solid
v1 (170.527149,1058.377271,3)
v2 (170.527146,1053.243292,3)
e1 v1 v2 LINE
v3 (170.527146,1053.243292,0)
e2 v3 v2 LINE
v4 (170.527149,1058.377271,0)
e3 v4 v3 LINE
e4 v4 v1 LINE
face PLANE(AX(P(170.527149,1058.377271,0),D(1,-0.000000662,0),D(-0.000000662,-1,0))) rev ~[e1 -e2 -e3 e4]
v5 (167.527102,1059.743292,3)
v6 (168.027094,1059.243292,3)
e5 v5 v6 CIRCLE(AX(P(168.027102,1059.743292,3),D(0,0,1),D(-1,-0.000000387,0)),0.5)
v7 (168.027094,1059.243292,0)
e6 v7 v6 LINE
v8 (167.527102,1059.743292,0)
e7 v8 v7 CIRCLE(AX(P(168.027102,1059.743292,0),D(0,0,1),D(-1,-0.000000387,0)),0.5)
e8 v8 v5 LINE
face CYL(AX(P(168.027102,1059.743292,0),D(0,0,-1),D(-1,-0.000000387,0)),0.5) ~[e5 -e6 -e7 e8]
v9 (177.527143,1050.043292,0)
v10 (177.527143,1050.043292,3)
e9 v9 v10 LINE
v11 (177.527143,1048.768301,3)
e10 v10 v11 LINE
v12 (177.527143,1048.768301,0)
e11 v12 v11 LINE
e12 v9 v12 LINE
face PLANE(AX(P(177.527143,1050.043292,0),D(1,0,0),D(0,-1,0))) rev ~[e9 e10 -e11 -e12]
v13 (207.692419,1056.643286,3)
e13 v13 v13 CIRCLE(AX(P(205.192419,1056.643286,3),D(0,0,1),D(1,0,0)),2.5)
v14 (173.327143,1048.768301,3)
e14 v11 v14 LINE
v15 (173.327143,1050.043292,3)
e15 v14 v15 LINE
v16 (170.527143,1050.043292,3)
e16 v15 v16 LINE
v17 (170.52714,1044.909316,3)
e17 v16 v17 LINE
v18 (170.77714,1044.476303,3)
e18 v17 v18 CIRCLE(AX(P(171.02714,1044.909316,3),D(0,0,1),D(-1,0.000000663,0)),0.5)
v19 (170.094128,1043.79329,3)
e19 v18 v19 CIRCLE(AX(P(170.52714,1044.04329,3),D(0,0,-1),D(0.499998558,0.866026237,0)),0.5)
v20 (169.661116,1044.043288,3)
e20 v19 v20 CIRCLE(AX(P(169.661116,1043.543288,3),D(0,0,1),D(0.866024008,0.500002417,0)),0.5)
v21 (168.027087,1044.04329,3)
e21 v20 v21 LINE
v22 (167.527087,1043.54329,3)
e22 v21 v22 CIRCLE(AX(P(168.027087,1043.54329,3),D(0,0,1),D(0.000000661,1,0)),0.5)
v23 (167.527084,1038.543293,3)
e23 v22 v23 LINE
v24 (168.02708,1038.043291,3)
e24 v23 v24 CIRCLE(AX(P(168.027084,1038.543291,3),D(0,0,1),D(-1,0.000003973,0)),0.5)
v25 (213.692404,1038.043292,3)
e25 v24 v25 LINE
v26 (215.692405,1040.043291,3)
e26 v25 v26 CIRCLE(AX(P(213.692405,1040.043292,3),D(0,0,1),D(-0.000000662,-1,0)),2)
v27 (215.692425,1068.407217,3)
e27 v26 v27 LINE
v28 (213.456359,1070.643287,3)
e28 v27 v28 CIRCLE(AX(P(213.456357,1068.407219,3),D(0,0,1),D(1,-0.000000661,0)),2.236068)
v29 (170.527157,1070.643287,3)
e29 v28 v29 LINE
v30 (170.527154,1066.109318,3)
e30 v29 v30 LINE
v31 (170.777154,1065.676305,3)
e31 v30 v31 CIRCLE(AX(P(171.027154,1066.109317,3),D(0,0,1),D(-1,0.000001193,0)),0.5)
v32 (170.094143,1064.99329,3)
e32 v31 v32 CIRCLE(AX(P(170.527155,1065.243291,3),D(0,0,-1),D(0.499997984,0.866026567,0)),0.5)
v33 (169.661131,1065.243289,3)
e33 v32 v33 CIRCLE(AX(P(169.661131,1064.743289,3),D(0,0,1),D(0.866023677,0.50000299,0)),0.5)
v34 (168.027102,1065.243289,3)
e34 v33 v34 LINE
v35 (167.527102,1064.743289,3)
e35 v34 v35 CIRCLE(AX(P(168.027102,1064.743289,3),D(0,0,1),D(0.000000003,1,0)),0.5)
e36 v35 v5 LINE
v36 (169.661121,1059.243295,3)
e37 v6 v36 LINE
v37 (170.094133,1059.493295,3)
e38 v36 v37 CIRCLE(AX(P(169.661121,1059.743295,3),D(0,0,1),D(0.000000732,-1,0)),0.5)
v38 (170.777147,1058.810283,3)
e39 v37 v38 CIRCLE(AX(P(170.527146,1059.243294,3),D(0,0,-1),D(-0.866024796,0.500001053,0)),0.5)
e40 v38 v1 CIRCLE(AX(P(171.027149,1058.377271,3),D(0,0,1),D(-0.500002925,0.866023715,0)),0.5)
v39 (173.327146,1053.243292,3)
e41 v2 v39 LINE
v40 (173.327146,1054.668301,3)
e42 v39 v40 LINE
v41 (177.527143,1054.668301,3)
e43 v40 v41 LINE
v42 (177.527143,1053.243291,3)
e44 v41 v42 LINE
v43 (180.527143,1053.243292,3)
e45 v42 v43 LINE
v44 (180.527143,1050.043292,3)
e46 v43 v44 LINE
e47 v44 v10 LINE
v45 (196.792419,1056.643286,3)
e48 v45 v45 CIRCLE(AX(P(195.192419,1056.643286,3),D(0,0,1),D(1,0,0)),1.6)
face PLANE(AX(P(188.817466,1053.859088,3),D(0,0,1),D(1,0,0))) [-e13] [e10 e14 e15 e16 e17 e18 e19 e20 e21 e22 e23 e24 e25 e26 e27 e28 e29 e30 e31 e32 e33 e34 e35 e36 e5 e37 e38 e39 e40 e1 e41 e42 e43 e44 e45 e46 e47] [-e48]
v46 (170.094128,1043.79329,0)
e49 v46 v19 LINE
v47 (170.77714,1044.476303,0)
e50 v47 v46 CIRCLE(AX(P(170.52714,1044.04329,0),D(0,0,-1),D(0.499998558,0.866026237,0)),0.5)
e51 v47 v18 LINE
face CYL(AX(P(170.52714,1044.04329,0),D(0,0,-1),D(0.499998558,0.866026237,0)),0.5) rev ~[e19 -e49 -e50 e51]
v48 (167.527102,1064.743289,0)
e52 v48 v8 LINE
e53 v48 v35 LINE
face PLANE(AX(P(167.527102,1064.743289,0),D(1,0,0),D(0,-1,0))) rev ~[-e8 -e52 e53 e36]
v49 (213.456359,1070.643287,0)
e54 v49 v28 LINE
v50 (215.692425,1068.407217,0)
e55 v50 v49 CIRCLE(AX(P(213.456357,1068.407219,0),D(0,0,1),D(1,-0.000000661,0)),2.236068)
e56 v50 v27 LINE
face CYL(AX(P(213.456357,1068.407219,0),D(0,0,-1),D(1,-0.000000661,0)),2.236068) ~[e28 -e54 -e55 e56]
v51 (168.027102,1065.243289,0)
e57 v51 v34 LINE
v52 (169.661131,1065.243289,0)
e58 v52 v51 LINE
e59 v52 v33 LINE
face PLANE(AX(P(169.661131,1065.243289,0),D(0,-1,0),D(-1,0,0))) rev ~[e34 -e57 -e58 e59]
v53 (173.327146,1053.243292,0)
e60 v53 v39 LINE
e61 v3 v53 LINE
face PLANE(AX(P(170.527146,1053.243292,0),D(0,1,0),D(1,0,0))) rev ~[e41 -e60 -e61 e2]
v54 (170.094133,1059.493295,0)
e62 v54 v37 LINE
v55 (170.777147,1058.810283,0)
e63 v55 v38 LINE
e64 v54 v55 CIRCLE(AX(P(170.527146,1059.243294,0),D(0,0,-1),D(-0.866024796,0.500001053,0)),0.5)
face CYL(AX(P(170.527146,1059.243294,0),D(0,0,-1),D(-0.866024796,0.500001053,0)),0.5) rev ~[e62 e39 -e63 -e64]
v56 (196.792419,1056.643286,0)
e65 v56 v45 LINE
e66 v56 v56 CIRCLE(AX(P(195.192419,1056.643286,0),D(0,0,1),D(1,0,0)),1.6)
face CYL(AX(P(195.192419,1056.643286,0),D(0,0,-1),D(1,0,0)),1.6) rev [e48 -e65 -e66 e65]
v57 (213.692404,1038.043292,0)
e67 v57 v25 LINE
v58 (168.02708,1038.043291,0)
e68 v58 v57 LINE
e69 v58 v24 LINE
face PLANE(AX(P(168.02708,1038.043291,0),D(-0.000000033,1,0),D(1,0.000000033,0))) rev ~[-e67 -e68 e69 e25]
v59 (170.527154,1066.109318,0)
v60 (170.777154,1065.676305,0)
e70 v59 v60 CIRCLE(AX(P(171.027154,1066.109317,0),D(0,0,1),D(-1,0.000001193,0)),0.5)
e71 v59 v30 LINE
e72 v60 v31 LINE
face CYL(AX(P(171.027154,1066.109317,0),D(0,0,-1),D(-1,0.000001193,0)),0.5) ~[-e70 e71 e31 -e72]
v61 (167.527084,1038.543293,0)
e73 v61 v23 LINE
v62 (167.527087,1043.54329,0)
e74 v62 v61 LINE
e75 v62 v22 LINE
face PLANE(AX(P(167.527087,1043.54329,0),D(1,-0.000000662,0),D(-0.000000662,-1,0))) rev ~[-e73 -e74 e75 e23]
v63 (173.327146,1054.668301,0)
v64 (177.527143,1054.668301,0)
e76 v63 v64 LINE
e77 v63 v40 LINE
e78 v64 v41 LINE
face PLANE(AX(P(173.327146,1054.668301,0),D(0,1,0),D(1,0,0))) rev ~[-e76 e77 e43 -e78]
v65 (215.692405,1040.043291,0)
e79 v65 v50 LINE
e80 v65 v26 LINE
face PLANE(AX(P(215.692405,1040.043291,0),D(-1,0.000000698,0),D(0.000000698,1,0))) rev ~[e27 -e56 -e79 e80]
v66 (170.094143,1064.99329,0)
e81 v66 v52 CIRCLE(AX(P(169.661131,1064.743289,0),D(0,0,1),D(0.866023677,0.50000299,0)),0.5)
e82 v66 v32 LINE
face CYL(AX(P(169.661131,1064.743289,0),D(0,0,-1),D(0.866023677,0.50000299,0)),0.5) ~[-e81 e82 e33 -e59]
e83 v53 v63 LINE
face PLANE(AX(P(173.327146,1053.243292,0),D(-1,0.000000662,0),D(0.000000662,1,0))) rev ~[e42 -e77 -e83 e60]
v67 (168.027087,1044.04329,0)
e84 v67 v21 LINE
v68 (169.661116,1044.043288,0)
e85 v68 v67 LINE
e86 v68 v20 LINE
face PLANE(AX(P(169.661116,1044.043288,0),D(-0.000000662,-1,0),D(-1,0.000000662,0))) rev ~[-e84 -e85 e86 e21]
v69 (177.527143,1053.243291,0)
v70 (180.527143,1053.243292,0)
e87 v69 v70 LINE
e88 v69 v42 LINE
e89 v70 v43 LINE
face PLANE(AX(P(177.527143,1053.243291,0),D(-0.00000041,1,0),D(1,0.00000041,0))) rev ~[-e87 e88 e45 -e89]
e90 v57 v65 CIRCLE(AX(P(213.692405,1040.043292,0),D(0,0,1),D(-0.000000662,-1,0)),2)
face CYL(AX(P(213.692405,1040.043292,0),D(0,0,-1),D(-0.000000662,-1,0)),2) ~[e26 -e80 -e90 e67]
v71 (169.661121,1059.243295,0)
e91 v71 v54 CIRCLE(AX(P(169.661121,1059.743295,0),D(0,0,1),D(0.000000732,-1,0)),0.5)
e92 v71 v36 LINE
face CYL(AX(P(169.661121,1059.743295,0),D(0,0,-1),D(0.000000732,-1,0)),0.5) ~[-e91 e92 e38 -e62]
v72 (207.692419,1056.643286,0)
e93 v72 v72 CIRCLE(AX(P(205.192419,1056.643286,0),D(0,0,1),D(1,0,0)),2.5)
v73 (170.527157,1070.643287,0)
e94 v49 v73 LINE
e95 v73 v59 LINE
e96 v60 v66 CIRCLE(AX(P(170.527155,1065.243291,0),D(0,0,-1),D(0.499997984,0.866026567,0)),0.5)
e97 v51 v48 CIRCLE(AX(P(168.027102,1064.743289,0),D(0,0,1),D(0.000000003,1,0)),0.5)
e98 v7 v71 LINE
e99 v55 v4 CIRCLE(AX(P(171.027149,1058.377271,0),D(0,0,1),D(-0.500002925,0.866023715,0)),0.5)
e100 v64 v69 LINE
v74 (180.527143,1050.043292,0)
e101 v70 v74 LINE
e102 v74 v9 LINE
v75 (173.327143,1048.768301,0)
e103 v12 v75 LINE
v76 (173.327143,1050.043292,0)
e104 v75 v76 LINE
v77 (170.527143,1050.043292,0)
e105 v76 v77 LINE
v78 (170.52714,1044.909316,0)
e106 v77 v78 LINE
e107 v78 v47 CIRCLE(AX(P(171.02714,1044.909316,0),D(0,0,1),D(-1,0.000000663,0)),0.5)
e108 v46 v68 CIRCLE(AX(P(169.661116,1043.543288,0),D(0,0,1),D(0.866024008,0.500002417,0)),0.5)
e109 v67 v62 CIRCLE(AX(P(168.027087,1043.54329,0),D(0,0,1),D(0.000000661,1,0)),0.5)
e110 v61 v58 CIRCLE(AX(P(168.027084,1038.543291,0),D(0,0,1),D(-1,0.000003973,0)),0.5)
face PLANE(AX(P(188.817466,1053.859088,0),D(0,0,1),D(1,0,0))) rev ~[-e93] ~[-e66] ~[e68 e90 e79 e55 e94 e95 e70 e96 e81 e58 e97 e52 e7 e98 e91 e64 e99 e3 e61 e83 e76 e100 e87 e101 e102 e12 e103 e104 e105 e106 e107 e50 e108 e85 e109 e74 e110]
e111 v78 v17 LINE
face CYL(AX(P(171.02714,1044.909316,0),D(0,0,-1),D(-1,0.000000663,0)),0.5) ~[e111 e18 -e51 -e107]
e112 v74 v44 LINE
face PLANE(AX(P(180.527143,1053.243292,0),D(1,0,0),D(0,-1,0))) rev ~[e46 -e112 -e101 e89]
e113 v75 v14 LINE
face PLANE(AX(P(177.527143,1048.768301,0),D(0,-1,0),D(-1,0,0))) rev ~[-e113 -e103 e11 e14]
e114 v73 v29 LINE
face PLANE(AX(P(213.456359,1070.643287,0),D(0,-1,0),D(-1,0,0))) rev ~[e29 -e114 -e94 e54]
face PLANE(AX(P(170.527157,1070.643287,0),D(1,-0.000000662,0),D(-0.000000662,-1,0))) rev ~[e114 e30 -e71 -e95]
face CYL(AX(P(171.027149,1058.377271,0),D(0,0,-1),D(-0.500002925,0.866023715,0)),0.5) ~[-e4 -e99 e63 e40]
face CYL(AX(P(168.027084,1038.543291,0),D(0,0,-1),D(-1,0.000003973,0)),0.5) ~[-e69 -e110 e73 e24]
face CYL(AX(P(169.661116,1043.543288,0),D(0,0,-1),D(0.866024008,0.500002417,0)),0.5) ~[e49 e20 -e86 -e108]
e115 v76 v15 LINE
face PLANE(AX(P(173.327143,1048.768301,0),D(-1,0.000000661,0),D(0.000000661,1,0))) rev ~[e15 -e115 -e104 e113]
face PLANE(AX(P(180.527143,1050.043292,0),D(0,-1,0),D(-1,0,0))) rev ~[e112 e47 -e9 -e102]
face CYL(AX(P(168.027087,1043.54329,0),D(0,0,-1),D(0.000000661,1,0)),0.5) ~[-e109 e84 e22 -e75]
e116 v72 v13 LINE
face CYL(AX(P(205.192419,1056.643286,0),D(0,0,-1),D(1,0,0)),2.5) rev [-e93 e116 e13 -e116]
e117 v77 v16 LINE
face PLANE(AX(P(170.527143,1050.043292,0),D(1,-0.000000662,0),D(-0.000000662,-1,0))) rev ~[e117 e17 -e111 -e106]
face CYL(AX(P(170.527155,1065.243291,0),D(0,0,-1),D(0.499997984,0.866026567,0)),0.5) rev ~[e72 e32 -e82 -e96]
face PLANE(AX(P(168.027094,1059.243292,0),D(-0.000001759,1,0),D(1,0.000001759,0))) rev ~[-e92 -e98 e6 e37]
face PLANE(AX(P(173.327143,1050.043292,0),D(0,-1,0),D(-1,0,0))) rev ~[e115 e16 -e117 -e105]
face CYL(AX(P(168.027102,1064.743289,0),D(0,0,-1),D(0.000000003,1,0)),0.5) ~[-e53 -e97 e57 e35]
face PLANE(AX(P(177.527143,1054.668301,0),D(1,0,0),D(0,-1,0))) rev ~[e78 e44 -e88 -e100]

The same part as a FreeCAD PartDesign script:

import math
import FreeCAD as App
import Part
import Sketcher

doc = App.newDocument("Part")
body = doc.addObject("PartDesign::Body", "Body")

sketch1 = doc.addObject("Sketcher::SketchObject", "Sketch")
body.addObject(sketch1)
sketch1.AttachmentSupport = (doc.XY_Plane, [""])
sketch1.MapMode = "FlatFace"
sketch1.addGeometry([
    Part.LineSegment(App.Vector(168.02708, 1038.043291, 0), App.Vector(213.692404, 1038.043292, 0)),
    Part.ArcOfCircle(Part.Circle(App.Vector(213.692405, 1040.043292, 0), App.Vector(0, 0, 1), 2), math.radians(-90.000038), math.radians(-0.000038)),
    Part.LineSegment(App.Vector(215.692405, 1040.043291, 0), App.Vector(215.692425, 1068.407217, 0)),
    Part.ArcOfCircle(Part.Circle(App.Vector(213.456357, 1068.407219, 0), App.Vector(0, 0, 1), 2.236068), math.radians(-0.000038), math.radians(89.999961)),
    Part.LineSegment(App.Vector(213.456359, 1070.643287, 0), App.Vector(170.527157, 1070.643287, 0)),
    Part.LineSegment(App.Vector(170.527157, 1070.643287, 0), App.Vector(170.527154, 1066.109318, 0)),
    Part.ArcOfCircle(Part.Circle(App.Vector(171.027154, 1066.109317, 0), App.Vector(0, 0, 1), 0.5), math.radians(179.999932), math.radians(240)),
    Part.ArcOfCircle(Part.Circle(App.Vector(170.527155, 1065.243291, 0), App.Vector(0, 0, 1), 0.5), math.radians(-149.999878), math.radians(60.000133)),
    Part.ArcOfCircle(Part.Circle(App.Vector(169.661131, 1064.743289, 0), App.Vector(0, 0, 1), 0.5), math.radians(30.000198), math.radians(90)),
    Part.LineSegment(App.Vector(169.661131, 1065.243289, 0), App.Vector(168.027102, 1065.243289, 0)),
    Part.ArcOfCircle(Part.Circle(App.Vector(168.027102, 1064.743289, 0), App.Vector(0, 0, 1), 0.5), math.radians(90), math.radians(180)),
    Part.LineSegment(App.Vector(167.527102, 1064.743289, 0), App.Vector(167.527102, 1059.743292, 0)),
    Part.ArcOfCircle(Part.Circle(App.Vector(168.027102, 1059.743292, 0), App.Vector(0, 0, 1), 0.5), math.radians(-179.999978), math.radians(-90.000922)),
    Part.LineSegment(App.Vector(168.027094, 1059.243292, 0), App.Vector(169.661121, 1059.243295, 0)),
    Part.ArcOfCircle(Part.Circle(App.Vector(169.661121, 1059.743295, 0), App.Vector(0, 0, 1), 0.5), math.radians(-89.999958), math.radians(-30.000004)),
    Part.ArcOfCircle(Part.Circle(App.Vector(170.527146, 1059.243294, 0), App.Vector(0, 0, 1), 0.5), math.radians(-59.999768), math.radians(149.99993)),
    Part.ArcOfCircle(Part.Circle(App.Vector(171.027149, 1058.377271, 0), App.Vector(0, 0, 1), 0.5), math.radians(120.000193), math.radians(179.999962)),
    Part.LineSegment(App.Vector(170.527149, 1058.377271, 0), App.Vector(170.527146, 1053.243292, 0)),
    Part.LineSegment(App.Vector(170.527146, 1053.243292, 0), App.Vector(173.327146, 1053.243292, 0)),
    Part.LineSegment(App.Vector(173.327146, 1053.243292, 0), App.Vector(173.327146, 1054.668301, 0)),
    Part.LineSegment(App.Vector(173.327146, 1054.668301, 0), App.Vector(177.527143, 1054.668301, 0)),
    Part.LineSegment(App.Vector(177.527143, 1054.668301, 0), App.Vector(177.527143, 1053.243291, 0)),
    Part.LineSegment(App.Vector(177.527143, 1053.243291, 0), App.Vector(180.527143, 1053.243292, 0)),
    Part.LineSegment(App.Vector(180.527143, 1053.243292, 0), App.Vector(180.527143, 1050.043292, 0)),
    Part.LineSegment(App.Vector(180.527143, 1050.043292, 0), App.Vector(177.527143, 1050.043292, 0)),
    Part.LineSegment(App.Vector(177.527143, 1050.043292, 0), App.Vector(177.527143, 1048.768301, 0)),
    Part.LineSegment(App.Vector(177.527143, 1048.768301, 0), App.Vector(173.327143, 1048.768301, 0)),
    Part.LineSegment(App.Vector(173.327143, 1048.768301, 0), App.Vector(173.327143, 1050.043292, 0)),
    Part.LineSegment(App.Vector(173.327143, 1050.043292, 0), App.Vector(170.527143, 1050.043292, 0)),
    Part.LineSegment(App.Vector(170.527143, 1050.043292, 0), App.Vector(170.52714, 1044.909316, 0)),
    Part.ArcOfCircle(Part.Circle(App.Vector(171.02714, 1044.909316, 0), App.Vector(0, 0, 1), 0.5), math.radians(179.999962), math.radians(239.999962)),
    Part.ArcOfCircle(Part.Circle(App.Vector(170.52714, 1044.04329, 0), App.Vector(0, 0, 1), 0.5), math.radians(-149.999916), math.radians(60.000095)),
    Part.ArcOfCircle(Part.Circle(App.Vector(169.661116, 1043.543288, 0), App.Vector(0, 0, 1), 0.5), math.radians(30.00016), math.radians(89.999962)),
    Part.LineSegment(App.Vector(169.661116, 1044.043288, 0), App.Vector(168.027087, 1044.04329, 0)),
    Part.ArcOfCircle(Part.Circle(App.Vector(168.027087, 1043.54329, 0), App.Vector(0, 0, 1), 0.5), math.radians(89.999962), math.radians(179.999962)),
    Part.LineSegment(App.Vector(167.527087, 1043.54329, 0), App.Vector(167.527084, 1038.543293, 0)),
    Part.ArcOfCircle(Part.Circle(App.Vector(168.027084, 1038.543291, 0), App.Vector(0, 0, 1), 0.5), math.radians(179.999772), math.radians(269.999553)),
    Part.Circle(App.Vector(195.192419, 1056.643286, 0), App.Vector(0, 0, 1), 1.6),
    Part.Circle(App.Vector(205.192419, 1056.643286, 0), App.Vector(0, 0, 1), 2.5),
], False)
sketch1.addConstraint([
    Sketcher.Constraint("Coincident", 0, 2, 1, 1),
    Sketcher.Constraint("Coincident", 1, 2, 2, 1),
    Sketcher.Constraint("Coincident", 2, 2, 3, 1),
    Sketcher.Constraint("Coincident", 3, 2, 4, 1),
    Sketcher.Constraint("Coincident", 4, 2, 5, 1),
    Sketcher.Constraint("Coincident", 5, 2, 6, 1),
    Sketcher.Constraint("Coincident", 6, 2, 7, 2),
    Sketcher.Constraint("Coincident", 7, 1, 8, 1),
    Sketcher.Constraint("Coincident", 8, 2, 9, 1),
    Sketcher.Constraint("Coincident", 9, 2, 10, 1),
    Sketcher.Constraint("Coincident", 10, 2, 11, 1),
    Sketcher.Constraint("Coincident", 11, 2, 12, 1),
    Sketcher.Constraint("Coincident", 12, 2, 13, 1),
    Sketcher.Constraint("Coincident", 13, 2, 14, 1),
    Sketcher.Constraint("Coincident", 14, 2, 15, 2),
    Sketcher.Constraint("Coincident", 15, 1, 16, 1),
    Sketcher.Constraint("Coincident", 16, 2, 17, 1),
    Sketcher.Constraint("Coincident", 17, 2, 18, 1),
    Sketcher.Constraint("Coincident", 18, 2, 19, 1),
    Sketcher.Constraint("Coincident", 19, 2, 20, 1),
    Sketcher.Constraint("Coincident", 20, 2, 21, 1),
    Sketcher.Constraint("Coincident", 21, 2, 22, 1),
    Sketcher.Constraint("Coincident", 22, 2, 23, 1),
    Sketcher.Constraint("Coincident", 23, 2, 24, 1),
    Sketcher.Constraint("Coincident", 24, 2, 25, 1),
    Sketcher.Constraint("Coincident", 25, 2, 26, 1),
    Sketcher.Constraint("Coincident", 26, 2, 27, 1),
    Sketcher.Constraint("Coincident", 27, 2, 28, 1),
    Sketcher.Constraint("Coincident", 28, 2, 29, 1),
    Sketcher.Constraint("Coincident", 29, 2, 30, 1),
    Sketcher.Constraint("Coincident", 30, 2, 31, 2),
    Sketcher.Constraint("Coincident", 31, 1, 32, 1),
    Sketcher.Constraint("Coincident", 32, 2, 33, 1),
    Sketcher.Constraint("Coincident", 33, 2, 34, 1),
    Sketcher.Constraint("Coincident", 34, 2, 35, 1),
    Sketcher.Constraint("Coincident", 35, 2, 36, 1),
    Sketcher.Constraint("Coincident", 36, 2, 0, 1),
    Sketcher.Constraint("Horizontal", 0),
    Sketcher.Constraint("Horizontal", 4),
    Sketcher.Constraint("Horizontal", 9),
    Sketcher.Constraint("Vertical", 11),
    Sketcher.Constraint("Horizontal", 18),
    Sketcher.Constraint("Vertical", 19),
    Sketcher.Constraint("Horizontal", 20),
    Sketcher.Constraint("Vertical", 21),
    Sketcher.Constraint("Horizontal", 22),
    Sketcher.Constraint("Vertical", 23),
    Sketcher.Constraint("Horizontal", 24),
    Sketcher.Constraint("Vertical", 25),
    Sketcher.Constraint("Horizontal", 26),
    Sketcher.Constraint("Vertical", 27),
    Sketcher.Constraint("Horizontal", 28),
    Sketcher.Constraint("Horizontal", 33),
    Sketcher.Constraint("Diameter", 38, 5.0),
    Sketcher.Constraint("Radius", 1, 2.0),
    Sketcher.Constraint("Diameter", 37, 3.2),
    Sketcher.Constraint("Radius", 6, 0.5),
    Sketcher.Constraint("Radius", 7, 0.5),
    Sketcher.Constraint("Radius", 8, 0.5),
    Sketcher.Constraint("Radius", 10, 0.5),
    Sketcher.Constraint("Radius", 12, 0.5),
    Sketcher.Constraint("Radius", 14, 0.5),
    Sketcher.Constraint("Radius", 15, 0.5),
    Sketcher.Constraint("Radius", 16, 0.5),
    Sketcher.Constraint("Radius", 30, 0.5),
    Sketcher.Constraint("Radius", 31, 0.5),
    Sketcher.Constraint("Radius", 32, 0.5),
    Sketcher.Constraint("Radius", 34, 0.5),
    Sketcher.Constraint("Radius", 36, 0.5),
    Sketcher.Constraint("DistanceX", 22, 1, 22, 2, 3.0),
    Sketcher.Constraint("DistanceX", 24, 2, 24, 1, 3.0),
    Sketcher.Constraint("DistanceX", 18, 1, 18, 2, 2.8),
    Sketcher.Constraint("DistanceX", 26, 2, 26, 1, 4.2),
    Sketcher.Constraint("DistanceX", 28, 2, 28, 1, 2.8),
    Sketcher.Constraint("DistanceY", 23, 2, 23, 1, 3.2),
    Sketcher.Constraint("DistanceY", 36, 3, 34, 3, 4.999999),
    Sketcher.Constraint("DistanceX", 37, 3, 38, 3, 10.0),
    Sketcher.Constraint("DistanceX", 0, 2, 1, 2, 2.000001),
    Sketcher.Constraint("DistanceY", 0, 2, 1, 2, 1.999999),
    Sketcher.Constraint("DistanceY", 38, 3, 3, 2, 14.000001),
    Sketcher.Constraint("DistanceY", 37, 3, 3, 2, 14.000001),
    Sketcher.Constraint("DistanceX", 7, 3, 6, 3, 0.499999),
    Sketcher.Constraint("DistanceY", 1, 3, 7, 3, 25.199999),
    Sketcher.Constraint("DistanceY", 12, 3, 7, 3, 5.499999),
    Sketcher.Constraint("DistanceY", 15, 3, 14, 3, 0.500001),
    Sketcher.Constraint("DistanceX", 31, 3, 30, 3, 0.5),
    Sketcher.Constraint("DistanceY", 31, 3, 12, 3, 15.700002),
    Sketcher.Constraint("DistanceX", 10, 2, 9, 2, 0.5),
    Sketcher.Constraint("DistanceY", 10, 2, 9, 2, 0.5),
    Sketcher.Constraint("DistanceY", 12, 2, 11, 2, 0.5),
    Sketcher.Constraint("DistanceX", 15, 3, 18, 2, 2.8),
    Sketcher.Constraint("DistanceY", 23, 2, 18, 2, 3.2),
    Sketcher.Constraint("DistanceY", 25, 2, 20, 2, 5.9),
    Sketcher.Constraint("DistanceY", 27, 2, 18, 2, 3.2),
    Sketcher.Constraint("DistanceX", 34, 2, 33, 2, 0.5),
    Sketcher.Constraint("DistanceY", 34, 2, 33, 2, 0.5),
    Sketcher.Constraint("DistanceY", 36, 2, 35, 2, 0.500002),
    Sketcher.Constraint("DistanceX", 6, 2, 6, 3, 0.25),
    Sketcher.Constraint("DistanceY", 8, 3, 7, 1, 0.250001),
    Sketcher.Constraint("DistanceY", 7, 1, 7, 3, 0.250001),
    Sketcher.Constraint("DistanceY", 13, 2, 14, 2, 0.25),
    Sketcher.Constraint("DistanceX", 15, 1, 16, 3, 0.250001),
    Sketcher.Constraint("DistanceX", 15, 3, 15, 1, 0.250002),
    Sketcher.Constraint("DistanceX", 30, 2, 30, 3, 0.25),
    Sketcher.Constraint("DistanceY", 32, 3, 31, 1, 0.250001),
    Sketcher.Constraint("DistanceX", 4, 2, 4, 1, 42.929202),
    Sketcher.Constraint("Radius", 3, 2.236068),
    Sketcher.Constraint("DistanceX", 9, 2, 9, 1, 1.634029),
    Sketcher.Constraint("DistanceX", 33, 2, 33, 1, 1.634029),
    Sketcher.Constraint("DistanceY", 19, 1, 19, 2, 1.425009),
    Sketcher.Constraint("DistanceY", -1, 1, 19, 2, 1054.668301),
    Sketcher.Constraint("DistanceY", 6, 3, 3, 3, 2.297902),
    Sketcher.Constraint("DistanceX", 14, 3, 37, 3, 25.531299),
    Sketcher.Constraint("Distance", 5, 4.533969),
    Sketcher.Constraint("Distance", 17, 5.133979),
    Sketcher.Constraint("DistanceX", 0, 1, 0, 2, 45.665324),
    Sketcher.Constraint("DistanceX", 20, 1, 20, 2, 4.199996),
    Sketcher.Constraint("DistanceY", -1, 1, 3, 3, 1068.407219),
    Sketcher.Constraint("DistanceX", -1, 1, 8, 3, 169.661131),
    Sketcher.Constraint("DistanceX", -1, 1, 14, 3, 169.661121),
    Sketcher.Constraint("DistanceY", -1, 1, 16, 3, 1058.377271),
    Sketcher.Constraint("DistanceX", -1, 1, 30, 3, 171.02714),
    Sketcher.Constraint("DistanceX", -1, 1, 3, 2, 213.456359),
    Sketcher.Constraint("DistanceX", -1, 1, 8, 2, 169.661131),
    Sketcher.Constraint("DistanceX", -1, 1, 13, 2, 169.661121),
    Sketcher.Constraint("DistanceX", -1, 1, 36, 2, 168.02708),
    Sketcher.Constraint("DistanceX", 3, 3, 1, 3, 0.236048),
    Sketcher.Constraint("DistanceX", 34, 3, 32, 3, 1.634029),
    Sketcher.Constraint("DistanceY", 38, 3, 2, 2, 11.763931),
    Sketcher.Constraint("DistanceX", 11, 2, 12, 2, 0.499992),
    Sketcher.Constraint("Distance", 29, 5.133976),
    Sketcher.Constraint("DistanceX", -1, 1, 36, 3, 168.027084),
])
pad1 = doc.addObject("PartDesign::Pad", "Pad")
body.addObject(pad1)
pad1.Profile = sketch1
pad1.Length = 3

doc.recompute()
